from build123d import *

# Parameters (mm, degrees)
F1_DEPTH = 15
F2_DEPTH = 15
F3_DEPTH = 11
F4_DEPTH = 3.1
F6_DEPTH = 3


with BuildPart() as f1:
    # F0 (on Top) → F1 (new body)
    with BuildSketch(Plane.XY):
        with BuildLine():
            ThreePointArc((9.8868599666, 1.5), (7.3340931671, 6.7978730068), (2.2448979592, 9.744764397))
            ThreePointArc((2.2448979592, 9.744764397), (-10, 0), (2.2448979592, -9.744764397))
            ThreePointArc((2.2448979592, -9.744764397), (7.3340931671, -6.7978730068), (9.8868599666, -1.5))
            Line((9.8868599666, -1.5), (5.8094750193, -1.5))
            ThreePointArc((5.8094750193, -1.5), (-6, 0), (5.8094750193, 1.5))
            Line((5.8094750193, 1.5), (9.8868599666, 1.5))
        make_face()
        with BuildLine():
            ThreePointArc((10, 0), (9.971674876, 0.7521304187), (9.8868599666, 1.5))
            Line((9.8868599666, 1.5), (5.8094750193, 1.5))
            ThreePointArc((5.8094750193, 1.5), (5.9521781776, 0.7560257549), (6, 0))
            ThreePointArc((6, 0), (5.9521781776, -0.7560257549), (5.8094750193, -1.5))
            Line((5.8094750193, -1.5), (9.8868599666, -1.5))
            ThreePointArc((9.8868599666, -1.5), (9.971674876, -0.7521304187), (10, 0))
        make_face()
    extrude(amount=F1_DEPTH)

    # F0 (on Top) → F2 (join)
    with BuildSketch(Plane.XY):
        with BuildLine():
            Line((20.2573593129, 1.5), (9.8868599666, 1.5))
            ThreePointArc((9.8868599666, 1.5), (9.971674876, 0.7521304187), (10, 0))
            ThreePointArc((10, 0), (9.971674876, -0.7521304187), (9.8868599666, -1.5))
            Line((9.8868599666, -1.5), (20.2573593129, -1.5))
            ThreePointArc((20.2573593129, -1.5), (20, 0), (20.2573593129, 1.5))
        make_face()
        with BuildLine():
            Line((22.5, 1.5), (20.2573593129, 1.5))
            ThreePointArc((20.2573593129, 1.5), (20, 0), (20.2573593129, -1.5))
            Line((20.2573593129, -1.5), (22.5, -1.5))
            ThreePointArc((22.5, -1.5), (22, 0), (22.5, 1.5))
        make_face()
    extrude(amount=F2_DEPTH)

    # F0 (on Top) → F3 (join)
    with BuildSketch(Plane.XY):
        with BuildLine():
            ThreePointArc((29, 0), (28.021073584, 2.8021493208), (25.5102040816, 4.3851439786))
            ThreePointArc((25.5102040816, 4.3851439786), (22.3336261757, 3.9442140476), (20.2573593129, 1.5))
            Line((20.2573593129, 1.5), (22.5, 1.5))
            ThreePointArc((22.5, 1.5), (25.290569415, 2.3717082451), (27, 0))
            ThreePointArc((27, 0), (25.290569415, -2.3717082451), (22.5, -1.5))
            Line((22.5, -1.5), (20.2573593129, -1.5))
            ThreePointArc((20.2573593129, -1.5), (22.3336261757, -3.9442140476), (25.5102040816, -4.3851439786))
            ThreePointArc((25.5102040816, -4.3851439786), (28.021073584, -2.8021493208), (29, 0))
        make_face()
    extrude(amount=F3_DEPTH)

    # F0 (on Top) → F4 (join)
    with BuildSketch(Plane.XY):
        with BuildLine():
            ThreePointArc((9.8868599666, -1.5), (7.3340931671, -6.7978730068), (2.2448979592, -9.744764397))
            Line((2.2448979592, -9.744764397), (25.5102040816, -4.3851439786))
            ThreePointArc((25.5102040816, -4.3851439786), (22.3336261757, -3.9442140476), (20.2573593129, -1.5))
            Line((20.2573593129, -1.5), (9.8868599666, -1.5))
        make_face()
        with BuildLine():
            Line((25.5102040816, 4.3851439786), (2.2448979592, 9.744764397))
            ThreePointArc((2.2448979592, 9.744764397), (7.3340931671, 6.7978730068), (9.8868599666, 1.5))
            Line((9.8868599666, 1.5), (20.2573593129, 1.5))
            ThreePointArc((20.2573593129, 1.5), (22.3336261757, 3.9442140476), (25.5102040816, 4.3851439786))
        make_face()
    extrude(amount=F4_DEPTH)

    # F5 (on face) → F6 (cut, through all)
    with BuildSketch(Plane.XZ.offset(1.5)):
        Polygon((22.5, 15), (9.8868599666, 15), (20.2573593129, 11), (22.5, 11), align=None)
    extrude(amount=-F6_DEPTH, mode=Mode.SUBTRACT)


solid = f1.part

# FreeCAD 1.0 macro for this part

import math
import FreeCAD as App
import Part
import Sketcher
from FreeCAD import Vector


def add_polygon(sketch, points):
    """Adds a closed chain of lines whose ends are joined by coincident constraints."""
    first, n = sketch.GeometryCount, len(points)
    for a, b in zip(points, points[1:] + points[:1]):
        sketch.addGeometry(Part.LineSegment(App.Vector(*a, 0), App.Vector(*b, 0)), False)
    for i in range(n):
        sketch.addConstraint(Sketcher.Constraint("Coincident", first + i, 2, first + (i + 1) % n, 1))

doc = App.newDocument("Part")
params = doc.addObject("Spreadsheet::Sheet", "Params")
for row, (alias, value) in enumerate([
    ("sketch1_radius", "10 mm"),
    ("sketch1_radius2", "6 mm"),
    ("pad1_length", "15 mm"),
    ("sketch2_radius", "10 mm"),
    ("sketch2_radius2", "2.5 mm"),
    ("pad2_length", "15 mm"),
    ("sketch3_radius", "4.5 mm"),
    ("sketch3_radius2", "2.5 mm"),
    ("pad3_length", "11 mm"),
    ("sketch4_radius", "10 mm"),
    ("sketch4_radius2", "4.5 mm"),
    ("pad4_length", "3.1 mm"),
    ("sketch5_height", "4 mm"),
], start=1):
    params.set(f"A{row}", alias)
    params.set(f"B{row}", "=" + value)
    params.setAlias(f"B{row}", alias)

body = doc.addObject("PartDesign::Body", "Body")

# Sketch on XY plane
sketch1 = body.newObject("Sketcher::SketchObject", "Sketch")
sketch1.AttachmentSupport = (doc.getObject("XY_Plane"), [""])
sketch1.MapMode = "FlatFace"
sketch1.addGeometry([
    Part.ArcOfCircle(Part.Circle(Vector(0, 0, 0), Vector(0, 0, 1), 10), math.radians(9), math.radians(77)),  # 0
    Part.ArcOfCircle(Part.Circle(Vector(0, 0, 0), Vector(0, 0, 1), 10), math.radians(77), math.radians(283)),  # 1
    Part.ArcOfCircle(Part.Circle(Vector(0, 0, 0), Vector(0, 0, 1), 10), math.radians(-77), math.radians(-9)),  # 2
    Part.ArcOfCircle(Part.Circle(Vector(0, 0, 0), Vector(0, 0, 1), 10), math.radians(-8.63), math.radians(0)),  # 3
    Part.ArcOfCircle(Part.Circle(Vector(0, 0, 0), Vector(0, 0, 1), 10), math.radians(0), math.radians(8.63)),  # 4
    Part.ArcOfCircle(Part.Circle(Vector(0, 0, 0), Vector(0, 0, 1), 6), math.radians(14), math.radians(346)),  # 5
    Part.ArcOfCircle(Part.Circle(Vector(0, 0, 0), Vector(0, 0, 1), 6), math.radians(-14), math.radians(14)),  # 6
], False)
sketch1.addConstraint([
    Sketcher.Constraint("Tangent", 0, 2, 1, 1),
    Sketcher.Constraint("Tangent", 1, 2, 2, 1),
    Sketcher.Constraint("Tangent", 2, 2, 3, 1),
    Sketcher.Constraint("Tangent", 3, 2, 4, 1),
    Sketcher.Constraint("Tangent", 4, 2, 0, 1),
    Sketcher.Constraint("Tangent", 5, 1, 6, 2),
    Sketcher.Constraint("Coincident", 6, 1, 5, 2),
    Sketcher.Constraint("Coincident", 0, 3, -1, 1),
    Sketcher.Constraint("Coincident", 2, 3, -1, 1),
    Sketcher.Constraint("Coincident", 5, 3, -1, 1),
    Sketcher.Constraint("PointOnObject", 3, 2, -1),
    Sketcher.Constraint("Horizontal", 4, 2, 5, 1),
    Sketcher.Constraint("Horizontal", 2, 2, 6, 1),
    Sketcher.Constraint("Vertical", 0, 2, 1, 2),
    Sketcher.Constraint("Vertical", 2, 2, 4, 2),
    Sketcher.Constraint("Radius", 0, 10.0),
    Sketcher.Constraint("Radius", 5, 6.0),
    Sketcher.Constraint("DistanceY", 2, 2, 4, 2, 3.0),
    Sketcher.Constraint("DistanceX", -1, 1, 0, 2, 2.244898),
])
sketch1.setExpression("Constraints[15]", "Params.sketch1_radius")
sketch1.setExpression("Constraints[16]", "Params.sketch1_radius2")
pad1 = body.newObject("PartDesign::Pad", "Pad")
pad1.Profile = sketch1
pad1.setExpression("Length", "Params.pad1_length")

# Sketch on XY plane
sketch2 = body.newObject("Sketcher::SketchObject", "Sketch001")
sketch2.AttachmentSupport = (doc.getObject("XY_Plane"), [""])
sketch2.MapMode = "FlatFace"
sketch2.addGeometry([
    Part.ArcOfCircle(Part.Circle(Vector(0, 0, 0), Vector(0, 0, 1), 10), math.radians(0), math.radians(8.63)),  # 0
    Part.ArcOfCircle(Part.Circle(Vector(0, 0, 0), Vector(0, 0, 1), 10), math.radians(-8.63), math.radians(0)),  # 1
    Part.LineSegment(Vector(9.9, -1.5, 0), Vector(22.5, -1.5, 0)),  # 2
    Part.ArcOfCircle(Part.Circle(Vector(24.5, 0, 0), Vector(0, 0, 1), 2.5), math.radians(143), math.radians(217)),  # 3
    Part.LineSegment(Vector(22.5, 1.5, 0), Vector(9.9, 1.5, 0)),  # 4
], False)
sketch2.addConstraint([
    Sketcher.Constraint("Tangent", 0, 1, 1, 2),
    Sketcher.Constraint("Coincident", 1, 1, 2, 1),
    Sketcher.Constraint("Coincident", 2, 2, 3, 2),
    Sketcher.Constraint("Coincident", 3, 1, 4, 1),
    Sketcher.Constraint("Coincident", 4, 2, 0, 2),
    Sketcher.Constraint("Horizontal", 2),
    Sketcher.Constraint("Horizontal", 4),
    Sketcher.Constraint("Coincident", 0, 3, -1, 1),
    Sketcher.Constraint("Equal", 0, 1),
    Sketcher.Constraint("Symmetric", 2, 2, 3, 1, -1),
    Sketcher.Constraint("PointOnObject", 0, 1, -1),
    Sketcher.Constraint("Radius", 0, 10.0),
    Sketcher.Constraint("Radius", 3, 2.5),
    Sketcher.Constraint("DistanceX", 2, 2, 3, 3, 2.0),
    Sketcher.Constraint("DistanceX", -1, 1, 3, 3, 24.5),
])
sketch2.setExpression("Constraints[11]", "Params.sketch2_radius")
sketch2.setExpression("Constraints[12]", "Params.sketch2_radius2")
pad2 = body.newObject("PartDesign::Pad", "Pad001")
pad2.Profile = sketch2
pad2.setExpression("Length", "Params.pad2_length")

# Sketch on XY plane
sketch3 = body.newObject("Sketcher::SketchObject", "Sketch002")
sketch3.AttachmentSupport = (doc.getObject("XY_Plane"), [""])
sketch3.MapMode = "FlatFace"
sketch3.addGeometry([
    Part.ArcOfCircle(Part.Circle(Vector(24.5, 0, 0), Vector(0, 0, 1), 4.5), math.radians(0), math.radians(77)),  # 0
    Part.ArcOfCircle(Part.Circle(Vector(24.5, 0, 0), Vector(0, 0, 1), 4.5), math.radians(77), math.radians(161)),  # 1
    Part.LineSegment(Vector(20.3, 1.5, 0), Vector(22.5, 1.5, 0)),  # 2
    Part.ArcOfCircle(Part.Circle(Vector(24.5, 0, 0), Vector(0, 0, 1), 2.5), math.radians(0), math.radians(143)),  # 3
    Part.ArcOfCircle(Part.Circle(Vector(24.5, 0, 0), Vector(0, 0, 1), 2.5), math.radians(-143), math.radians(0)),  # 4
    Part.LineSegment(Vector(22.5, -1.5, 0), Vector(20.3, -1.5, 0)),  # 5
    Part.ArcOfCircle(Part.Circle(Vector(24.5, 0, 0), Vector(0, 0, 1), 4.5), math.radians(-161), math.radians(-77)),  # 6
    Part.ArcOfCircle(Part.Circle(Vector(24.5, 0, 0), Vector(0, 0, 1), 4.5), math.radians(-77), math.radians(0)),  # 7
], False)
sketch3.addConstraint([
    Sketcher.Constraint("Tangent", 0, 2, 1, 1),
    Sketcher.Constraint("Coincident", 1, 2, 2, 1),
    Sketcher.Constraint("Coincident", 2, 2, 3, 2),
    Sketcher.Constraint("Tangent", 3, 1, 4, 2),
    Sketcher.Constraint("Coincident", 4, 1, 5, 1),
    Sketcher.Constraint("Coincident", 5, 2, 6, 1),
    Sketcher.Constraint("Tangent", 6, 2, 7, 1),
    Sketcher.Constraint("Tangent", 7, 2, 0, 1),
    Sketcher.Constraint("Horizontal", 2),
    Sketcher.Constraint("Horizontal", 5),
    Sketcher.Constraint("Coincident", 3, 3, 0, 3),
    Sketcher.Constraint("Coincident", 6, 3, 0, 3),
    Sketcher.Constraint("Equal", 0, 1),
    Sketcher.Constraint("Equal", 3, 4),
    Sketcher.Constraint("Symmetric", 2, 2, 4, 1, -1),
    Sketcher.Constraint("PointOnObject", 3, 1, -1),
    Sketcher.Constraint("PointOnObject", 7, 2, -1),
    Sketcher.Constraint("Vertical", 0, 2, 6, 2),
    Sketcher.Constraint("Radius", 0, 4.5),
    Sketcher.Constraint("Radius", 3, 2.5),
    Sketcher.Constraint("DistanceX", -1, 1, 3, 1, 27.0),
    Sketcher.Constraint("DistanceX", 2, 2, 0, 3, 2.0),
    Sketcher.Constraint("DistanceX", -1, 1, 0, 2, 25.510204),
])
sketch3.setExpression("Constraints[18]", "Params.sketch3_radius")
sketch3.setExpression("Constraints[19]", "Params.sketch3_radius2")
pad3 = body.newObject("PartDesign::Pad", "Pad002")
pad3.Profile = sketch3
pad3.setExpression("Length", "Params.pad3_length")

# Sketch on XY plane
sketch4 = body.newObject("Sketcher::SketchObject", "Sketch003")
sketch4.AttachmentSupport = (doc.getObject("XY_Plane"), [""])
sketch4.MapMode = "FlatFace"
sketch4.addGeometry([
    Part.ArcOfCircle(Part.Circle(Vector(0, 0, 0), Vector(0, 0, 1), 10), math.radians(-77), math.radians(-9)),  # 0
    Part.LineSegment(Vector(2.2, -9.7, 0), Vector(25.5, -4.4, 0)),  # 1
    Part.ArcOfCircle(Part.Circle(Vector(24.5, 0, 0), Vector(0, 0, 1), 4.5), math.radians(-161), math.radians(-77)),  # 2
    Part.LineSegment(Vector(20.3, -1.5, 0), Vector(9.9, -1.5, 0)),  # 3
    Part.LineSegment(Vector(25.5, 4.4, 0), Vector(2.2, 9.7, 0)),  # 4
    Part.ArcOfCircle(Part.Circle(Vector(0, 0, 0), Vector(0, 0, 1), 10), math.radians(9), math.radians(77)),  # 5
    Part.LineSegment(Vector(9.9, 1.5, 0), Vector(20.3, 1.5, 0)),  # 6
    Part.ArcOfCircle(Part.Circle(Vector(24.5, 0, 0), Vector(0, 0, 1), 4.5), math.radians(77), math.radians(161)),  # 7
], False)
sketch4.addConstraint([
    Sketcher.Constraint("Tangent", 0, 1, 1, 1),
    Sketcher.Constraint("Tangent", 1, 2, 2, 2),
    Sketcher.Constraint("Coincident", 2, 1, 3, 1),
    Sketcher.Constraint("Coincident", 3, 2, 0, 2),
    Sketcher.Constraint("Tangent", 4, 2, 5, 2),
    Sketcher.Constraint("Coincident", 5, 1, 6, 1),
    Sketcher.Constraint("Coincident", 6, 2, 7, 2),
    Sketcher.Constraint("Tangent", 7, 1, 4, 1),
    Sketcher.Constraint("Horizontal", 3),
    Sketcher.Constraint("Horizontal", 6),
    Sketcher.Constraint("Coincident", 0, 3, -1, 1),
    Sketcher.Constraint("Coincident", 5, 3, -1, 1),
    Sketcher.Constraint("Coincident", 7, 3, 2, 3),
    Sketcher.Constraint("Equal", 0, 5),
    Sketcher.Constraint("Equal", 2, 7),
    Sketcher.Constraint("Symmetric", 2, 1, 6, 2, -1),
    Sketcher.Constraint("Radius", 0, 10.0),
    Sketcher.Constraint("Radius", 2, 4.5),
    Sketcher.Constraint("DistanceY", 3, 2, 5, 1, 3.0),
    Sketcher.Constraint("DistanceX", -1, 1, 2, 3, 24.5),
])
sketch4.setExpression("Constraints[16]", "Params.sketch4_radius")
sketch4.setExpression("Constraints[17]", "Params.sketch4_radius2")
pad4 = body.newObject("PartDesign::Pad", "Pad003")
pad4.Profile = sketch4
pad4.setExpression("Length", "Params.pad4_length")

# Sketch on XZ plane
sketch5 = body.newObject("Sketcher::SketchObject", "Sketch004")
sketch5.AttachmentSupport = (doc.getObject("XZ_Plane"), [""])
sketch5.MapMode = "FlatFace"
sketch5.AttachmentOffset = App.Placement(Vector(0, 0, 1.5), App.Rotation())
add_polygon(sketch5, [(22.5, 15), (9.9, 15), (20.3, 11), (22.5, 11)])  # lines 0-3
sketch5.addConstraint([
    Sketcher.Constraint("Horizontal", 0),
    Sketcher.Constraint("Horizontal", 2),
    Sketcher.Constraint("Vertical", 3),
    Sketcher.Constraint("DistanceY", 3, 1, 3, 2, 4.0),
    Sketcher.Constraint("DistanceY", -1, 1, 0, 2, 15.0),
    Sketcher.Constraint("DistanceX", -1, 1, 2, 2, 22.5),
    Sketcher.Constraint("DistanceX", 0, 2, 0, 1, 12.61314),
    Sketcher.Constraint("DistanceX", 2, 1, 2, 2, 2.242641),
])
sketch5.setExpression("Constraints[7]", "Params.sketch5_height")
pocket1 = body.newObject("PartDesign::Pocket", "Pocket")
pocket1.Profile = sketch5
pocket1.Type = "ThroughAll"

doc.recompute()
